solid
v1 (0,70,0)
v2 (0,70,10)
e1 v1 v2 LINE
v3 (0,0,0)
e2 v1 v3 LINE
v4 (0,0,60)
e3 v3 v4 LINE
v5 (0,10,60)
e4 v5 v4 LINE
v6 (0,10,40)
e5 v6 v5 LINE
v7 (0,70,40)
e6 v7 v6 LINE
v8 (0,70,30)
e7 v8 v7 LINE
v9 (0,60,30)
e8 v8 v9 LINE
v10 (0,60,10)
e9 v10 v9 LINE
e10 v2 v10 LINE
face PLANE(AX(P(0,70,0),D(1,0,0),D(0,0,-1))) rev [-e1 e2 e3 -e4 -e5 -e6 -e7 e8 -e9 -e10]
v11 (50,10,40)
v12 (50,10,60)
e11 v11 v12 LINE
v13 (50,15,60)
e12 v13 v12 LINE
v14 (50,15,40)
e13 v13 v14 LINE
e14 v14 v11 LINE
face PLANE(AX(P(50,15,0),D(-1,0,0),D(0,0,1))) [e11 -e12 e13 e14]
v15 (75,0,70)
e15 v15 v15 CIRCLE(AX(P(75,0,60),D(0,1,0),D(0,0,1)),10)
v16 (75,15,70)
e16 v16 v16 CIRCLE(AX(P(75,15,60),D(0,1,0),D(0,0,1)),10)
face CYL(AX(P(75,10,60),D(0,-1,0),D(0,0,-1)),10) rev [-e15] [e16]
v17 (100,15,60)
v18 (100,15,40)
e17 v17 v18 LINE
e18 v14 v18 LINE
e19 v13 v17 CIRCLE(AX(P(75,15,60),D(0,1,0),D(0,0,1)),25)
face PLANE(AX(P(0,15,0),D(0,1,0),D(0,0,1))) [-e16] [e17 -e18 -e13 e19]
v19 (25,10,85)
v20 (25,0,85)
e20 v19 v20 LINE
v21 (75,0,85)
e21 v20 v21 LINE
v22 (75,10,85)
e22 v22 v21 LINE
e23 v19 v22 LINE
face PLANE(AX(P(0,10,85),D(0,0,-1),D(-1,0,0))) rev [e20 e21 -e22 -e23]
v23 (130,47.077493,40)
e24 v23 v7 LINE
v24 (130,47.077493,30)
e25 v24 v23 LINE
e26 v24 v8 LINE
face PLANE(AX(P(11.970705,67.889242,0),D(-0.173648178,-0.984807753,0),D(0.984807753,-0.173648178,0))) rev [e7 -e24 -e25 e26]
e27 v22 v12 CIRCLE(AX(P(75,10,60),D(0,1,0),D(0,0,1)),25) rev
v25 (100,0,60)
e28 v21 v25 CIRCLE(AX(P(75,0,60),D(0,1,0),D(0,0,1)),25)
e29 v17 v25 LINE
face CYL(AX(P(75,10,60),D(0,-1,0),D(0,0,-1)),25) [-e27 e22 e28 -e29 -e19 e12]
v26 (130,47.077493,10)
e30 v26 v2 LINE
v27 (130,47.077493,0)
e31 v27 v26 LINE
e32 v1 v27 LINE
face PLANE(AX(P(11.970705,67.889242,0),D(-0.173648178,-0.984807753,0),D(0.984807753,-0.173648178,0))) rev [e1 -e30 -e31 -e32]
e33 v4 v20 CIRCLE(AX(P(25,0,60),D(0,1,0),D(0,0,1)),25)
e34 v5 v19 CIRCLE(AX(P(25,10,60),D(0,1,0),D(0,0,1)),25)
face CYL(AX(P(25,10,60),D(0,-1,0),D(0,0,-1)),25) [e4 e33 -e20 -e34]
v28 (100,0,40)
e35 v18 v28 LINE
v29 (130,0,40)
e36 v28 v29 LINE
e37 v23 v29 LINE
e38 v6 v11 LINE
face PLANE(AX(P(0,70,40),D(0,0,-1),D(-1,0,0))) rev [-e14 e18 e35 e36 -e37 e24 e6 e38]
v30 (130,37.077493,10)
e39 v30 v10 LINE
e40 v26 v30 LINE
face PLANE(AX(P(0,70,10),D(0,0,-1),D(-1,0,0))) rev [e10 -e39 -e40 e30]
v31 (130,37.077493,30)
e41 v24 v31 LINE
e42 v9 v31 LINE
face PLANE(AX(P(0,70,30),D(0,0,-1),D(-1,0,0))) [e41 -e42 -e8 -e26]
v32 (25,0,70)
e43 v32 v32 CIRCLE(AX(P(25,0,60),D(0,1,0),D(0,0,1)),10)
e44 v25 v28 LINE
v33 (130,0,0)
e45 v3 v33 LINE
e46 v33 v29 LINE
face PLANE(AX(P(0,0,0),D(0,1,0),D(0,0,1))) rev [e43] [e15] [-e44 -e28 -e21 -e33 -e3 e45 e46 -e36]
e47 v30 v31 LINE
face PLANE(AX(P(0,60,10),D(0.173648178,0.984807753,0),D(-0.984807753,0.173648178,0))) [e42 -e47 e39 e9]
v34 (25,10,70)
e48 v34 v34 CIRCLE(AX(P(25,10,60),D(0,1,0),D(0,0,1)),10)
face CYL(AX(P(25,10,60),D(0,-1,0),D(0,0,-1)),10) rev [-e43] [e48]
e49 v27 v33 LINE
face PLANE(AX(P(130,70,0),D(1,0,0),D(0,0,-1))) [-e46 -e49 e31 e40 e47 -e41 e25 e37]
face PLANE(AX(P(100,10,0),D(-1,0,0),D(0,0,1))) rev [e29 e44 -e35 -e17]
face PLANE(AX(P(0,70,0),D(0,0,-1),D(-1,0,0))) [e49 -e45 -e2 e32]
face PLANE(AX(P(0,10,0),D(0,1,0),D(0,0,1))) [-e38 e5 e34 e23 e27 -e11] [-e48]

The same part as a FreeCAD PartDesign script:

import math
import FreeCAD as App
import Part
import Sketcher

V = App.Vector
Q = App.Units.Quantity

doc = App.newDocument("Part")
body = doc.addObject("PartDesign::Body", "Body")

sketch1 = doc.addObject("Sketcher::SketchObject", "Sketch")
body.addObject(sketch1)
sketch1.AttachmentSupport = (doc.XZ_Plane, [""])
sketch1.MapMode = "FlatFace"
sketch1.addGeometry([
    Part.LineSegment(V(0, 0, 0), V(0, 10, 0)),
    Part.LineSegment(V(0, 10, 0), V(130, 10, 0)),
    Part.LineSegment(V(130, 10, 0), V(130, 0, 0)),
    Part.LineSegment(V(130, 0, 0), V(0, 0, 0)),
], False)
sketch1.addConstraint([
    Sketcher.Constraint("Coincident", 0, 2, 1, 1),
    Sketcher.Constraint("Coincident", 1, 2, 2, 1),
    Sketcher.Constraint("Coincident", 2, 2, 3, 1),
    Sketcher.Constraint("Coincident", 3, 2, 0, 1),
    Sketcher.Constraint("Vertical", 0),
    Sketcher.Constraint("Horizontal", 1),
    Sketcher.Constraint("Vertical", 2),
    Sketcher.Constraint("Horizontal", 3),
    Sketcher.Constraint("Coincident", 3, 2, -1, 1),
    Sketcher.Constraint("DistanceX", 1, 1, 1, 2, 130.0),
    Sketcher.Constraint("DistanceY", 0, 1, 0, 2, 10.0),
])
pad1 = doc.addObject("PartDesign::Pad", "Pad")
body.addObject(pad1)
pad1.Profile = sketch1
pad1.Length = 70
pad1.Reversed = True
body2 = doc.addObject("PartDesign::Body", "Body001")

sketch2 = doc.addObject("Sketcher::SketchObject", "Sketch001")
body2.addObject(sketch2)
sketch2.AttachmentSupport = (doc.getObject("XZ_Plane001"), [""])
sketch2.MapMode = "FlatFace"
sketch2.addGeometry([
    Part.LineSegment(V(0, 30, 0), V(0, 40, 0)),
    Part.LineSegment(V(0, 40, 0), V(130, 40, 0)),
    Part.LineSegment(V(130, 40, 0), V(130, 30, 0)),
    Part.LineSegment(V(130, 30, 0), V(0, 30, 0)),
], False)
sketch2.addConstraint([
    Sketcher.Constraint("Coincident", 0, 2, 1, 1),
    Sketcher.Constraint("Coincident", 1, 2, 2, 1),
    Sketcher.Constraint("Coincident", 2, 2, 3, 1),
    Sketcher.Constraint("Coincident", 3, 2, 0, 1),
    Sketcher.Constraint("Vertical", 0),
    Sketcher.Constraint("Horizontal", 1),
    Sketcher.Constraint("Vertical", 2),
    Sketcher.Constraint("Horizontal", 3),
    Sketcher.Constraint("PointOnObject", 0, 2, -2),
    Sketcher.Constraint("DistanceX", 1, 1, 1, 2, 130.0),
    Sketcher.Constraint("DistanceY", 0, 1, 0, 2, 10.0),
    Sketcher.Constraint("DistanceY", -1, 1, 0, 2, 40.0),
])
pad2 = doc.addObject("PartDesign::Pad", "Pad001")
body2.addObject(pad2)
pad2.Profile = sketch2
pad2.Length = 70
pad2.Reversed = True
body.AllowCompound = True
doc.recompute()

boolean = doc.addObject("PartDesign::Boolean", "Boolean")
body.addObject(boolean)
boolean.Type = "Fuse"
boolean.addObjects([body2])

sketch3 = doc.addObject("Sketcher::SketchObject", "Sketch002")
body.addObject(sketch3)
sketch3.AttachmentSupport = (doc.XZ_Plane, [""])
sketch3.MapMode = "FlatFace"
sketch3.addGeometry([
    Part.LineSegment(V(0, 10, 0), V(0, 30, 0)),
    Part.LineSegment(V(0, 30, 0), V(130, 30, 0)),
    Part.LineSegment(V(130, 30, 0), V(130, 10, 0)),
    Part.LineSegment(V(130, 10, 0), V(0, 10, 0)),
], False)
sketch3.addConstraint([
    Sketcher.Constraint("Coincident", 0, 2, 1, 1),
    Sketcher.Constraint("Coincident", 1, 2, 2, 1),
    Sketcher.Constraint("Coincident", 2, 2, 3, 1),
    Sketcher.Constraint("Coincident", 3, 2, 0, 1),
    Sketcher.Constraint("Vertical", 0),
    Sketcher.Constraint("Horizontal", 1),
    Sketcher.Constraint("Vertical", 2),
    Sketcher.Constraint("Horizontal", 3),
    Sketcher.Constraint("PointOnObject", 0, 2, -2),
    Sketcher.Constraint("DistanceX", 1, 1, 1, 2, 130.0),
    Sketcher.Constraint("DistanceY", 0, 1, 0, 2, 20.0),
    Sketcher.Constraint("DistanceY", -1, 1, 0, 2, 30.0),
])
pad3 = doc.addObject("PartDesign::Pad", "Pad002")
body.addObject(pad3)
pad3.Profile = sketch3
pad3.Length = 60
pad3.Reversed = True

sketch4 = doc.addObject("Sketcher::SketchObject", "Sketch003")
body.addObject(sketch4)
sketch4.AttachmentSupport = (doc.YZ_Plane, [""])
sketch4.MapMode = "FlatFace"
sketch4.AttachmentOffset = App.Placement(V(0, 0, 130), App.Rotation())
sketch4.addGeometry([
    Part.LineSegment(V(60, 30, 0), V(37, 30, 0)),
    Part.LineSegment(V(37, 30, 0), V(37, 10, 0)),
    Part.LineSegment(V(37, 10, 0), V(60, 10, 0)),
    Part.LineSegment(V(60, 10, 0), V(60, 30, 0)),
], False)
sketch4.addConstraint([
    Sketcher.Constraint("Coincident", 0, 2, 1, 1),
    Sketcher.Constraint("Coincident", 1, 2, 2, 1),
    Sketcher.Constraint("Coincident", 2, 2, 3, 1),
    Sketcher.Constraint("Coincident", 3, 2, 0, 1),
    Sketcher.Constraint("Horizontal", 0),
    Sketcher.Constraint("Vertical", 1),
    Sketcher.Constraint("Horizontal", 2),
    Sketcher.Constraint("Vertical", 3),
    Sketcher.Constraint("DistanceY", 1, 2, 1, 1, 20.0),
    Sketcher.Constraint("DistanceY", -1, 1, 0, 2, 30.0),
    Sketcher.Constraint("DistanceX", -1, 1, 2, 2, 60.0),
    Sketcher.Constraint("DistanceX", 0, 2, 0, 1, 22.922507),
])
pocket1 = doc.addObject("PartDesign::Pocket", "Pocket")
body.addObject(pocket1)
pocket1.Profile = sketch4
pocket1.Length = 130

sketch5 = doc.addObject("Sketcher::SketchObject", "Sketch004")
body.addObject(sketch5)
sketch5.AttachmentSupport = (doc.XY_Plane, [""])
sketch5.MapMode = "FlatFace"
sketch5.AttachmentOffset = App.Placement(V(0, 0, 40), App.Rotation())
sketch5.addGeometry([
    Part.LineSegment(V(130, 70, 0), V(0, 70, 0)),
    Part.LineSegment(V(0, 70, 0), V(130, 47, 0)),
    Part.LineSegment(V(130, 47, 0), V(130, 70, 0)),
], False)
sketch5.addConstraint([
    Sketcher.Constraint("Coincident", 0, 2, 1, 1),
    Sketcher.Constraint("Coincident", 1, 2, 2, 1),
    Sketcher.Constraint("Coincident", 2, 2, 0, 1),
    Sketcher.Constraint("Horizontal", 0),
    Sketcher.Constraint("Vertical", 2),
    Sketcher.Constraint("PointOnObject", 0, 2, -2),
    Sketcher.Constraint("DistanceX", 0, 2, 0, 1, 130.0),
    Sketcher.Constraint("Angle", 1, Q("-10 deg")),
    Sketcher.Constraint("DistanceY", -1, 1, 0, 2, 70.0),
])
pocket2 = doc.addObject("PartDesign::Pocket", "Pocket001")
body.addObject(pocket2)
pocket2.Profile = sketch5
pocket2.Type = "ThroughAll"
pocket2.Midplane = True

sketch6 = doc.addObject("Sketcher::SketchObject", "Sketch005")
body.addObject(sketch6)
sketch6.AttachmentSupport = (doc.XY_Plane, [""])
sketch6.MapMode = "FlatFace"
sketch6.AttachmentOffset = App.Placement(V(0, 0, 40), App.Rotation())
sketch6.addGeometry([
    Part.LineSegment(V(0, 37, 0), V(130, 37, 0)),
    Part.LineSegment(V(130, 37, 0), V(0, 60, 0)),
    Part.LineSegment(V(0, 60, 0), V(0, 37, 0)),
], False)
sketch6.addConstraint([
    Sketcher.Constraint("Coincident", 0, 2, 1, 1),
    Sketcher.Constraint("Coincident", 1, 2, 2, 1),
    Sketcher.Constraint("Coincident", 2, 2, 0, 1),
    Sketcher.Constraint("Horizontal", 0),
    Sketcher.Constraint("Vertical", 2),
    Sketcher.Constraint("PointOnObject", 1, 2, -2),
    Sketcher.Constraint("DistanceX", 0, 1, 0, 2, 130.0),
    Sketcher.Constraint("Angle", 1, Q("170 deg")),
    Sketcher.Constraint("DistanceY", -1, 1, 1, 2, 60.0),
])
pad4 = doc.addObject("PartDesign::Pad", "Pad003")
body.addObject(pad4)
pad4.Profile = sketch6
pad4.Length = 30
pad4.Reversed = True

sketch7 = doc.addObject("Sketcher::SketchObject", "Sketch006")
body.addObject(sketch7)
sketch7.AttachmentSupport = (doc.XZ_Plane, [""])
sketch7.MapMode = "FlatFace"
sketch7.addGeometry([
    Part.LineSegment(V(0, 40, 0), V(0, 60, 0)),
    Part.ArcOfCircle(Part.Circle(V(25, 60, 0), V(0, 0, 1), 25), math.radians(90), math.radians(180)),
    Part.LineSegment(V(25, 85, 0), V(75, 85, 0)),
    Part.ArcOfCircle(Part.Circle(V(75, 60, 0), V(0, 0, 1), 25), math.radians(0), math.radians(90)),
    Part.LineSegment(V(100, 60, 0), V(100, 40, 0)),
    Part.LineSegment(V(100, 40, 0), V(0, 40, 0)),
    Part.Circle(V(25, 60, 0), V(0, 0, 1), 10),
    Part.Circle(V(75, 60, 0), V(0, 0, 1), 10),
], False)
sketch7.addConstraint([
    Sketcher.Constraint("Tangent", 0, 2, 1, 2),
    Sketcher.Constraint("Tangent", 1, 1, 2, 1),
    Sketcher.Constraint("Tangent", 2, 2, 3, 2),
    Sketcher.Constraint("Tangent", 3, 1, 4, 1),
    Sketcher.Constraint("Coincident", 4, 2, 5, 1),
    Sketcher.Constraint("Coincident", 5, 2, 0, 1),
    Sketcher.Constraint("Vertical", 0),
    Sketcher.Constraint("Horizontal", 2),
    Sketcher.Constraint("Vertical", 4),
    Sketcher.Constraint("Horizontal", 5),
    Sketcher.Constraint("Coincident", 6, 3, 1, 3),
    Sketcher.Constraint("Coincident", 7, 3, 3, 3),
    Sketcher.Constraint("Equal", 1, 3),
    Sketcher.Constraint("Equal", 6, 7),
    Sketcher.Constraint("PointOnObject", 0, 2, -2),
    Sketcher.Constraint("Diameter", 6, 20.0),
    Sketcher.Constraint("Radius", 1, 25.0),
    Sketcher.Constraint("DistanceX", 2, 1, 2, 2, 50.0),
    Sketcher.Constraint("DistanceY", 0, 1, 0, 2, 20.0),
    Sketcher.Constraint("DistanceY", -1, 1, 1, 3, 60.0),
])
pad5 = doc.addObject("PartDesign::Pad", "Pad004")
body.addObject(pad5)
pad5.Profile = sketch7
pad5.Length = 10
pad5.Reversed = True

sketch8 = doc.addObject("Sketcher::SketchObject", "Sketch007")
body.addObject(sketch8)
sketch8.AttachmentSupport = (doc.XZ_Plane, [""])
sketch8.MapMode = "FlatFace"
sketch8.addGeometry([
    Part.LineSegment(V(100, 40, 0), V(50, 40, 0)),
    Part.LineSegment(V(50, 40, 0), V(50, 60, 0)),
    Part.ArcOfCircle(Part.Circle(V(75, 60, 0), V(0, 0, 1), 25), math.radians(90), math.radians(180)),
    Part.ArcOfCircle(Part.Circle(V(75, 60, 0), V(0, 0, 1), 25), math.radians(0), math.radians(90)),
    Part.LineSegment(V(100, 60, 0), V(100, 40, 0)),
    Part.Circle(V(75, 60, 0), V(0, 0, 1), 10),
], False)
sketch8.addConstraint([
    Sketcher.Constraint("Coincident", 0, 2, 1, 1),
    Sketcher.Constraint("Tangent", 1, 2, 2, 2),
    Sketcher.Constraint("Tangent", 2, 1, 3, 2),
    Sketcher.Constraint("Tangent", 3, 1, 4, 1),
    Sketcher.Constraint("Coincident", 4, 2, 0, 1),
    Sketcher.Constraint("Horizontal", 0),
    Sketcher.Constraint("Vertical", 1),
    Sketcher.Constraint("Vertical", 4),
    Sketcher.Constraint("Coincident", 5, 3, 2, 3),
    Sketcher.Constraint("Equal", 2, 3),
    Sketcher.Constraint("Vertical", 5, 3, 2, 1),
    Sketcher.Constraint("Diameter", 5, 20.0),
    Sketcher.Constraint("Radius", 2, 25.0),
    Sketcher.Constraint("DistanceY", 1, 1, 1, 2, 20.0),
    Sketcher.Constraint("DistanceX", -1, 1, 2, 3, 75.0),
    Sketcher.Constraint("DistanceY", -1, 1, 2, 3, 60.0),
])
pad6 = doc.addObject("PartDesign::Pad", "Pad005")
body.addObject(pad6)
pad6.Profile = sketch8
pad6.Length = 15
pad6.Reversed = True

doc.recompute()
